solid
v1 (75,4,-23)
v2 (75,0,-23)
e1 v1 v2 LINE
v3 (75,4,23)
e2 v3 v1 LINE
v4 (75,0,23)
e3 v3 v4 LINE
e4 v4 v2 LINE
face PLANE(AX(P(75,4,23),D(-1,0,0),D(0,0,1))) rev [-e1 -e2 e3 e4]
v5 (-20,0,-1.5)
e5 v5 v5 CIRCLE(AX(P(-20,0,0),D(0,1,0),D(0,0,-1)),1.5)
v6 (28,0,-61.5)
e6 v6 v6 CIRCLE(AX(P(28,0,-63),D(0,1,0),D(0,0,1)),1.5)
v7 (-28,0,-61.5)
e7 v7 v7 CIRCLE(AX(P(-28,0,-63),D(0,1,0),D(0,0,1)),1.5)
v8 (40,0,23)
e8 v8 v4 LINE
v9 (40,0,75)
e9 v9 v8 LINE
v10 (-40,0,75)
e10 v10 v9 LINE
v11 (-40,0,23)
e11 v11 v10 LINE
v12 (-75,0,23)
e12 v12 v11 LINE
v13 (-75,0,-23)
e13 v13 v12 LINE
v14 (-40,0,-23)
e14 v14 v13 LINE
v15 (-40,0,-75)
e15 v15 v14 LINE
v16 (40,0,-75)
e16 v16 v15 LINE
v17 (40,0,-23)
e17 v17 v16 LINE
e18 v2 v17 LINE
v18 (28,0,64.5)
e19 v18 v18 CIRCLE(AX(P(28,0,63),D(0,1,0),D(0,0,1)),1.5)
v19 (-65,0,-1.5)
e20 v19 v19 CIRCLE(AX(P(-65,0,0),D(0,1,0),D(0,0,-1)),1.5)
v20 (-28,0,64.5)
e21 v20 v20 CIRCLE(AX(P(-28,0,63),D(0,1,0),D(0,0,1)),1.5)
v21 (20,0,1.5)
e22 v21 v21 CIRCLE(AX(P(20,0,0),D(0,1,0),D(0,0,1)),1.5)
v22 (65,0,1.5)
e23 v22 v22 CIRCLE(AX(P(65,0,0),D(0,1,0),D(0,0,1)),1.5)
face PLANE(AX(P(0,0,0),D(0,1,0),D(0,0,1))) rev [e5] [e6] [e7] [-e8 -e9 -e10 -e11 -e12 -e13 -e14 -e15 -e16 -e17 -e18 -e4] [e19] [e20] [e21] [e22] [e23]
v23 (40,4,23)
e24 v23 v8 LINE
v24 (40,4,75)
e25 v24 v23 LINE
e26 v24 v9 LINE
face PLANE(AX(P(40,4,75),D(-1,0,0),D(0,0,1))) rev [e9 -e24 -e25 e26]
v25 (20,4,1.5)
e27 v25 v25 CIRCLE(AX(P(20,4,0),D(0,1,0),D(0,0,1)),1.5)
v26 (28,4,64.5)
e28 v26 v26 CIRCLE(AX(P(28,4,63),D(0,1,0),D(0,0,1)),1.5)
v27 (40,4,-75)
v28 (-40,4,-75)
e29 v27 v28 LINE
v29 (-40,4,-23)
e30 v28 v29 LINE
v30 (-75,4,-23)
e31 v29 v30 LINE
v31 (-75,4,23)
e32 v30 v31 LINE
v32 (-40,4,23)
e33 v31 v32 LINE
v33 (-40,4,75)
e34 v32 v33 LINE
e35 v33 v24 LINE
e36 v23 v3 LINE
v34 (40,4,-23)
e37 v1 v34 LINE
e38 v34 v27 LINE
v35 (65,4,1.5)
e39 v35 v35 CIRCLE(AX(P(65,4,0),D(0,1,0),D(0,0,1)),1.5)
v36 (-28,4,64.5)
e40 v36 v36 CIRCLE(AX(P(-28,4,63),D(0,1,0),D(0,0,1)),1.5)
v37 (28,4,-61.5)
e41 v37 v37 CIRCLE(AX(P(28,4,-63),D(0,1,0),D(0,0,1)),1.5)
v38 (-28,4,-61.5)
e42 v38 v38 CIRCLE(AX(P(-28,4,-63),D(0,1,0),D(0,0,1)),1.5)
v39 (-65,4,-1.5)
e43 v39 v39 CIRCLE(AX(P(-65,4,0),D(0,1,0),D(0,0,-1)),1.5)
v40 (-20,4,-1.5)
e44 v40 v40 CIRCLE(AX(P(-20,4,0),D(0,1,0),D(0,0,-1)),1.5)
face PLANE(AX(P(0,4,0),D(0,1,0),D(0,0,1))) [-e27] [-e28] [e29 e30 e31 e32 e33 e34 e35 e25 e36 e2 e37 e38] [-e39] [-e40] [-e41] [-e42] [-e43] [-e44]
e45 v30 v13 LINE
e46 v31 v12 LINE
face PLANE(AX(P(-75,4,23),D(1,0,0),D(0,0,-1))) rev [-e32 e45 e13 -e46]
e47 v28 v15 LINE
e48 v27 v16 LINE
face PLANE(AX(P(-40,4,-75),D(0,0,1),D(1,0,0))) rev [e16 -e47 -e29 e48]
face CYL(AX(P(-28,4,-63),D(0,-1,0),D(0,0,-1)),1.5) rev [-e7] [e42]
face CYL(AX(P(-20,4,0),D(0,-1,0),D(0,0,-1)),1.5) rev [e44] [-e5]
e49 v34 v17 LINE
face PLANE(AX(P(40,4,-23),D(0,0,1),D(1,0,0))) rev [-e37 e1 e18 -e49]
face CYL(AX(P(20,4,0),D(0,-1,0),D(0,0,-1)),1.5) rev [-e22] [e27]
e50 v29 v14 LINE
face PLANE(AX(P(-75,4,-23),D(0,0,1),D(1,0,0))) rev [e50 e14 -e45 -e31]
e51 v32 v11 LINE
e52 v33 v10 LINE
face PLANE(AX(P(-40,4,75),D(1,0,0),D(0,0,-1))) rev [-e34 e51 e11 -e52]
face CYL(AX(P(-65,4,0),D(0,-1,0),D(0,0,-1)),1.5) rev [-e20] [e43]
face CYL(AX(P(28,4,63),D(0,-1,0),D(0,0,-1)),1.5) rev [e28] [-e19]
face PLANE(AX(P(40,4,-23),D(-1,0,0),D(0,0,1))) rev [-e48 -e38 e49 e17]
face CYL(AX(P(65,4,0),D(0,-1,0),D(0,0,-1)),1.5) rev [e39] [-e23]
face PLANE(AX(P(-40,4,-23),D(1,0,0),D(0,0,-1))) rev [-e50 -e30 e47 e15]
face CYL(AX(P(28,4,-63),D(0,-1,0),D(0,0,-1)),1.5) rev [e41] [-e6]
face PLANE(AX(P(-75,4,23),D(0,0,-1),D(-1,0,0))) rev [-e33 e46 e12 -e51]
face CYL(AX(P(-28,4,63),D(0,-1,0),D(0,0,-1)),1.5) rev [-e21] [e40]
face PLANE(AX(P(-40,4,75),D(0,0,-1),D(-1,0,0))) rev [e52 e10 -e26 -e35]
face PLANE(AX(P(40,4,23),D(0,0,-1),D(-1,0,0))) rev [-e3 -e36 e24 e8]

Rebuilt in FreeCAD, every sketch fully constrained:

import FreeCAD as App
import Part
import Sketcher
from FreeCAD import Vector
Q = App.Units.Quantity


def add_polygon(sketch, points):
    """Adds a closed chain of lines whose ends are joined by coincident constraints."""
    first, n = sketch.GeometryCount, len(points)
    for a, b in zip(points, points[1:] + points[:1]):
        sketch.addGeometry(Part.LineSegment(App.Vector(*a, 0), App.Vector(*b, 0)), False)
    for i in range(n):
        sketch.addConstraint(Sketcher.Constraint("Coincident", first + i, 2, first + (i + 1) % n, 1))

doc = App.newDocument("Part")
body = doc.addObject("PartDesign::Body", "Body")

# Sketch on XZ plane
sketch1 = doc.addObject("Sketcher::SketchObject", "Sketch")
body.addObject(sketch1)
sketch1.AttachmentSupport = (doc.XZ_Plane, [""])
sketch1.MapMode = "FlatFace"
add_polygon(sketch1, [(-75, 23), (-40, 23), (-40, 75), (40, 75), (40, 23), (75, 23), (75, -23), (40, -23), (40, -75), (-40, -75), (-40, -23), (-75, -23)])  # lines 0-11
sketch1.addGeometry(Part.Circle(Vector(-28, 63, 0), Vector(0, 0, 1), 1.5), False)  # 12
sketch1.addGeometry(Part.Circle(Vector(28, 63, 0), Vector(0, 0, 1), 1.5), False)  # 13
sketch1.addGeometry(Part.Circle(Vector(-65, 0, 0), Vector(0, 0, 1), 1.5), False)  # 14
sketch1.addGeometry(Part.Circle(Vector(-20, 0, 0), Vector(0, 0, 1), 1.5), False)  # 15
sketch1.addGeometry(Part.Circle(Vector(-28, -63, 0), Vector(0, 0, 1), 1.5), False)  # 16
sketch1.addGeometry(Part.Circle(Vector(20, 0, 0), Vector(0, 0, 1), 1.5), False)  # 17
sketch1.addGeometry(Part.Circle(Vector(65, 0, 0), Vector(0, 0, 1), 1.5), False)  # 18
sketch1.addGeometry(Part.Circle(Vector(28, -63, 0), Vector(0, 0, 1), 1.5), False)  # 19
sketch1.addConstraint(Sketcher.Constraint("Horizontal", 0))
sketch1.addConstraint(Sketcher.Constraint("Vertical", 1))
sketch1.addConstraint(Sketcher.Constraint("Horizontal", 2))
sketch1.addConstraint(Sketcher.Constraint("Vertical", 3))
sketch1.addConstraint(Sketcher.Constraint("Horizontal", 4))
sketch1.addConstraint(Sketcher.Constraint("Vertical", 5))
sketch1.addConstraint(Sketcher.Constraint("Horizontal", 6))
sketch1.addConstraint(Sketcher.Constraint("Vertical", 7))
sketch1.addConstraint(Sketcher.Constraint("Horizontal", 8))
sketch1.addConstraint(Sketcher.Constraint("Vertical", 9))
sketch1.addConstraint(Sketcher.Constraint("Horizontal", 10))
sketch1.addConstraint(Sketcher.Constraint("Vertical", 11))
sketch1.addConstraint(Sketcher.Constraint("Equal", 12, 13))
sketch1.addConstraint(Sketcher.Constraint("Equal", 13, 14))
sketch1.addConstraint(Sketcher.Constraint("Equal", 14, 15))
sketch1.addConstraint(Sketcher.Constraint("Equal", 15, 16))
sketch1.addConstraint(Sketcher.Constraint("Equal", 16, 17))
sketch1.addConstraint(Sketcher.Constraint("Equal", 17, 18))
sketch1.addConstraint(Sketcher.Constraint("Equal", 18, 19))
sketch1.addConstraint(Sketcher.Constraint("Symmetric", 13, 3, 16, 3, -1, 1))
sketch1.addConstraint(Sketcher.Constraint("Symmetric", 15, 3, 17, 3, -1, 1))
sketch1.addConstraint(Sketcher.Constraint("Symmetric", 14, 3, 18, 3, -1, 1))
sketch1.addConstraint(Sketcher.Constraint("Symmetric", 12, 3, 19, 3, -1, 1))
sketch1.addConstraint(Sketcher.Constraint("Symmetric", 0, 2, 6, 2, -1, 1))
sketch1.addConstraint(Sketcher.Constraint("Symmetric", 2, 2, 8, 2, -1, 1))
sketch1.addConstraint(Sketcher.Constraint("Symmetric", 4, 2, 10, 2, -1, 1))
sketch1.addConstraint(Sketcher.Constraint("Symmetric", 12, 3, 13, 3, -2))
sketch1.addConstraint(Sketcher.Constraint("Symmetric", 0, 2, 3, 2, -2))
sketch1.addConstraint(Sketcher.Constraint("PointOnObject", 14, 3, -1))
sketch1.addConstraint(Sketcher.Constraint("PointOnObject", 15, 3, -1))
sketch1.addConstraint(Sketcher.Constraint("Diameter", 12, Q("3 mm")))
sketch1.addConstraint(Sketcher.Constraint("DistanceX", 0, 1, 0, 2, Q("35 mm")))
sketch1.addConstraint(Sketcher.Constraint("DistanceX", 2, 1, 2, 2, Q("80 mm")))
sketch1.addConstraint(Sketcher.Constraint("DistanceY", 1, 1, 1, 2, Q("52 mm")))
sketch1.addConstraint(Sketcher.Constraint("DistanceY", 5, 2, 5, 1, Q("46 mm")))
sketch1.addConstraint(Sketcher.Constraint("DistanceX", 12, 3, -1, 1, Q("28 mm")))
sketch1.addConstraint(Sketcher.Constraint("DistanceY", -1, 1, 12, 3, Q("63 mm")))
sketch1.addConstraint(Sketcher.Constraint("DistanceX", 14, 3, -1, 1, Q("65 mm")))
sketch1.addConstraint(Sketcher.Constraint("DistanceX", 15, 3, -1, 1, Q("20 mm")))
pad1 = doc.addObject("PartDesign::Pad", "Pad")
body.addObject(pad1)
pad1.Profile = sketch1
pad1.Length = 4
pad1.Reversed = True

doc.recompute()
